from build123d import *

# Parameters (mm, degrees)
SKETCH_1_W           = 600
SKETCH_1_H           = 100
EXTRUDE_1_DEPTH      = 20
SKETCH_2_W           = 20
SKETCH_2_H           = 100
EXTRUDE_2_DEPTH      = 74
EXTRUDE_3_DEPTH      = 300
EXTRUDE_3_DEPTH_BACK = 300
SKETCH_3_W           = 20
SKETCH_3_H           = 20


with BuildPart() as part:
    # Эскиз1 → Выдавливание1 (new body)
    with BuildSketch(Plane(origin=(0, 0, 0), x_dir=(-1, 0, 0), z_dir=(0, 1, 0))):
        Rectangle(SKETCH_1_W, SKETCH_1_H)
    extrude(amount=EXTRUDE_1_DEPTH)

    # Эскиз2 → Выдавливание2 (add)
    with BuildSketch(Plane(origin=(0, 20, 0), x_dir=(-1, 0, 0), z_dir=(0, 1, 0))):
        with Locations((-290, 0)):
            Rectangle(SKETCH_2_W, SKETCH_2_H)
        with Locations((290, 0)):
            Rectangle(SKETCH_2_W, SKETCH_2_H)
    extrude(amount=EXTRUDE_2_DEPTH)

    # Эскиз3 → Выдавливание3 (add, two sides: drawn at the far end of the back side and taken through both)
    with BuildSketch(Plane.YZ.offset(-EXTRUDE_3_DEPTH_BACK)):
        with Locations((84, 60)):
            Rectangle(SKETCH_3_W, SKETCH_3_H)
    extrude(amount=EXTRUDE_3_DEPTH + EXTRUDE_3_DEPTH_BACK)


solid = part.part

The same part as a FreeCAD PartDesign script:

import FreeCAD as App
import Part
import Sketcher
Q = App.Units.Quantity


def add_polygon(sketch, points):
    """Adds a closed chain of lines whose ends are joined by coincident constraints."""
    first, n = sketch.GeometryCount, len(points)
    for a, b in zip(points, points[1:] + points[:1]):
        sketch.addGeometry(Part.LineSegment(App.Vector(*a, 0), App.Vector(*b, 0)), False)
    for i in range(n):
        sketch.addConstraint(Sketcher.Constraint("Coincident", first + i, 2, first + (i + 1) % n, 1))

doc = App.newDocument("Part")
params = doc.addObject("Spreadsheet::Sheet", "Params")
for row, (alias, value) in enumerate([
    ("sketch1_width", "600 mm"),
    ("sketch1_height", "100 mm"),
    ("pad1_length", "20 mm"),
    ("sketch2_width", "20 mm"),
    ("sketch2_height", "100 mm"),
    ("pad2_length", "74 mm"),
    ("sketch3_width", "20 mm"),
    ("pad3_length", "300 mm"),
    ("pad3_length2", "300 mm"),
], start=1):
    params.set(f"A{row}", alias)
    params.set(f"B{row}", "=" + value)
    params.setAlias(f"B{row}", alias)

body = doc.addObject("PartDesign::Body", "Body")

# Sketch on XZ plane
sketch1 = body.newObject("Sketcher::SketchObject", "Sketch")
sketch1.AttachmentSupport = (doc.getObject("XZ_Plane"), [""])
sketch1.MapMode = "FlatFace"
add_polygon(sketch1, [(300, 50), (300, -50), (-300, -50), (-300, 50)])  # lines 0-3
sketch1.addConstraint([
    Sketcher.Constraint("Vertical", 0),
    Sketcher.Constraint("Horizontal", 1),
    Sketcher.Constraint("Vertical", 2),
    Sketcher.Constraint("Horizontal", 3),
    Sketcher.Constraint("Symmetric", 0, 2, 2, 2, -1, 1),
    Sketcher.Constraint("DistanceX", 1, 2, 1, 1, Q("600 mm")),
    Sketcher.Constraint("DistanceY", 0, 2, 0, 1, Q("100 mm")),
])
sketch1.setExpression("Constraints[9]", "Params.sketch1_width")
sketch1.setExpression("Constraints[10]", "Params.sketch1_height")
pad1 = body.newObject("PartDesign::Pad", "Pad")
pad1.Profile = sketch1
pad1.setExpression("Length", "Params.pad1_length")
pad1.Reversed = True

# Sketch on XZ plane
sketch2 = body.newObject("Sketcher::SketchObject", "Sketch001")
sketch2.AttachmentSupport = (doc.getObject("XZ_Plane"), [""])
sketch2.MapMode = "FlatFace"
sketch2.AttachmentOffset = App.Placement(App.Vector(0, 0, -20), App.Rotation())
add_polygon(sketch2, [(300, 50), (300, -50), (280, -50), (280, 50)])  # lines 0-3
add_polygon(sketch2, [(-280, 50), (-280, -50), (-300, -50), (-300, 50)])  # lines 4-7
sketch2.addConstraint([
    Sketcher.Constraint("Vertical", 0),
    Sketcher.Constraint("Horizontal", 1),
    Sketcher.Constraint("Vertical", 2),
    Sketcher.Constraint("Horizontal", 3),
    Sketcher.Constraint("Vertical", 4),
    Sketcher.Constraint("Horizontal", 5),
    Sketcher.Constraint("Vertical", 6),
    Sketcher.Constraint("Horizontal", 7),
    Sketcher.Constraint("Symmetric", 2, 2, 4, 2, -1, 1),
    Sketcher.Constraint("Symmetric", 0, 2, 6, 2, -1, 1),
    Sketcher.Constraint("Horizontal", 1, 2, 4, 2),
    Sketcher.Constraint("DistanceX", 1, 2, 1, 1, Q("20 mm")),
    Sketcher.Constraint("DistanceY", 0, 2, 0, 1, Q("100 mm")),
    Sketcher.Constraint("DistanceX", -1, 1, 0, 2, Q("300 mm")),
])
sketch2.setExpression("Constraints[19]", "Params.sketch2_width")
sketch2.setExpression("Constraints[20]", "Params.sketch2_height")
pad2 = body.newObject("PartDesign::Pad", "Pad001")
pad2.Profile = sketch2
pad2.setExpression("Length", "Params.pad2_length")
pad2.Reversed = True

# Sketch on YZ plane
sketch3 = body.newObject("Sketcher::SketchObject", "Sketch002")
sketch3.AttachmentSupport = (doc.getObject("YZ_Plane"), [""])
sketch3.MapMode = "FlatFace"
add_polygon(sketch3, [(74, 70), (74, 50), (94, 50), (94, 70)])  # lines 0-3
sketch3.addConstraint([
    Sketcher.Constraint("Vertical", 0),
    Sketcher.Constraint("Horizontal", 1),
    Sketcher.Constraint("Vertical", 2),
    Sketcher.Constraint("Horizontal", 3),
    Sketcher.Constraint("Equal", 3, 0),
    Sketcher.Constraint("DistanceX", 1, 1, 1, 2, Q("20 mm")),
    Sketcher.Constraint("DistanceX", -1, 1, 0, 2, Q("74 mm")),
    Sketcher.Constraint("DistanceY", -1, 1, 0, 2, Q("50 mm")),
])
sketch3.setExpression("Constraints[9]", "Params.sketch3_width")
pad3 = body.newObject("PartDesign::Pad", "Pad002")
pad3.Profile = sketch3
pad3.Type = "TwoLengths"
pad3.setExpression("Length", "Params.pad3_length")
pad3.setExpression("Length2", "Params.pad3_length2")

doc.recompute()
